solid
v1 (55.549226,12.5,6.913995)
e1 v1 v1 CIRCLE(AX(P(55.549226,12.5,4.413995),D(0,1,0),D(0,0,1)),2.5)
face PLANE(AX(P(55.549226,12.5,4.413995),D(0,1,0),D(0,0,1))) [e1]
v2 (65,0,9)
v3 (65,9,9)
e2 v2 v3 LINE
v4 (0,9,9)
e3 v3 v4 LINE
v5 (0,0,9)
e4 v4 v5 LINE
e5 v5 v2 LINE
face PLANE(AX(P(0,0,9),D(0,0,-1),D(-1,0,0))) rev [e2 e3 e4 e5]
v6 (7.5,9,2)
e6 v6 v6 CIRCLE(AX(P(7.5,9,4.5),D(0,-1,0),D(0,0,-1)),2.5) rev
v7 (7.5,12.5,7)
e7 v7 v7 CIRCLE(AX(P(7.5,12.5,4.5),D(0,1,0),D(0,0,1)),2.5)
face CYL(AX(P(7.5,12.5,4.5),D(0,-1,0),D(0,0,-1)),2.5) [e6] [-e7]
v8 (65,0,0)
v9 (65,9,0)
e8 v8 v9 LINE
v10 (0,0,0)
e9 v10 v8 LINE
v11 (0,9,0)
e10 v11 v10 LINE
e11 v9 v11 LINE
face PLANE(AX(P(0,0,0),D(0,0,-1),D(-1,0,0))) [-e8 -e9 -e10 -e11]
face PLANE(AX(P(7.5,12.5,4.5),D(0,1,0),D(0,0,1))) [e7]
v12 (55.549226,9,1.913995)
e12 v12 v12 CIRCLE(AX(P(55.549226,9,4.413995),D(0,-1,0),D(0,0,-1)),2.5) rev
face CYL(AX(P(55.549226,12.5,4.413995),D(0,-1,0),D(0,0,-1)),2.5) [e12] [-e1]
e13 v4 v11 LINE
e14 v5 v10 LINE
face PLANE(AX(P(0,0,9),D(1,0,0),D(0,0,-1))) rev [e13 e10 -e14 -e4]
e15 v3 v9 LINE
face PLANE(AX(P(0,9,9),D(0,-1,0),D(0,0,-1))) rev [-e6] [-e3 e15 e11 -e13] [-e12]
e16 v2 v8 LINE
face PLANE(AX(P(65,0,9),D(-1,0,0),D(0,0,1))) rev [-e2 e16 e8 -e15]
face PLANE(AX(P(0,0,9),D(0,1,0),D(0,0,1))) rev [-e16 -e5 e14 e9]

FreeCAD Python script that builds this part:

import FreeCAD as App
import Part
import Sketcher
from FreeCAD import Vector


def add_polygon(sketch, points):
    """Adds a closed chain of lines whose ends are joined by coincident constraints."""
    first, n = sketch.GeometryCount, len(points)
    for a, b in zip(points, points[1:] + points[:1]):
        sketch.addGeometry(Part.LineSegment(App.Vector(*a, 0), App.Vector(*b, 0)), False)
    for i in range(n):
        sketch.addConstraint(Sketcher.Constraint("Coincident", first + i, 2, first + (i + 1) % n, 1))

doc = App.newDocument("Part")
params = doc.addObject("Spreadsheet::Sheet", "Params")
for row, (alias, value) in enumerate([
    ("sketch1_width", "65 mm"),
    ("sketch1_height", "9 mm"),
    ("pad1_length", "9 mm"),
    ("sketch2_diameter", "5 mm"),
    ("pad2_length", "3.5 mm"),
    ("sketch3_diameter", "5 mm"),
    ("pad3_length", "3.5 mm"),
], start=1):
    params.set(f"A{row}", alias)
    params.set(f"B{row}", "=" + value)
    params.setAlias(f"B{row}", alias)

body = doc.addObject("PartDesign::Body", "Body")

# Sketch on XY plane
sketch1 = body.newObject("Sketcher::SketchObject", "Sketch")
sketch1.AttachmentSupport = (doc.getObject("XY_Plane"), [""])
sketch1.MapMode = "FlatFace"
add_polygon(sketch1, [(0, 9), (0, 0), (65, 0), (65, 9)])  # lines 0-3
sketch1.addConstraint(Sketcher.Constraint("Vertical", 0))
sketch1.addConstraint(Sketcher.Constraint("Horizontal", 1))
sketch1.addConstraint(Sketcher.Constraint("Vertical", 2))
sketch1.addConstraint(Sketcher.Constraint("Horizontal", 3))
sketch1.addConstraint(Sketcher.Constraint("Coincident", 0, 2, -1, 1))
sketch1.addConstraint(Sketcher.Constraint("DistanceX", 1, 1, 1, 2, 65.0))
sketch1.addConstraint(Sketcher.Constraint("DistanceY", 0, 2, 0, 1, 9.0))
sketch1.setExpression("Constraints[9]", "Params.sketch1_width")
sketch1.setExpression("Constraints[10]", "Params.sketch1_height")
pad1 = body.newObject("PartDesign::Pad", "Pad")
pad1.Profile = sketch1
pad1.setExpression("Length", "Params.pad1_length")

# Sketch on XZ plane
sketch2 = body.newObject("Sketcher::SketchObject", "Sketch001")
sketch2.AttachmentSupport = (doc.getObject("XZ_Plane"), [""])
sketch2.MapMode = "FlatFace"
sketch2.addGeometry(Part.Circle(Vector(7.5, 4.5, 0), Vector(0, 0, 1), 2.5), False)
sketch2.addGeometry(Part.Circle(Vector(57.5, 4.5, 0), Vector(0, 0, 1), 2.5), False)
sketch2.addConstraint(Sketcher.Constraint("Equal", 0, 1))
sketch2.addConstraint(Sketcher.Constraint("Horizontal", 0, 3, 1, 3))
sketch2.addConstraint(Sketcher.Constraint("Diameter", 0, 5.0))
sketch2.addConstraint(Sketcher.Constraint("DistanceX", 0, 3, 1, 3, 50.0))
sketch2.addConstraint(Sketcher.Constraint("DistanceX", -1, 1, 0, 3, 7.5))
sketch2.addConstraint(Sketcher.Constraint("DistanceY", -1, 1, 0, 3, 4.5))
sketch2.setExpression("Constraints[2]", "Params.sketch2_diameter")
pad2 = body.newObject("PartDesign::Pad", "Pad001")
pad2.Profile = sketch2
pad2.setExpression("Length", "Params.pad2_length")
pad2.Reversed = True

# Sketch on XZ plane
sketch3 = body.newObject("Sketcher::SketchObject", "Sketch002")
sketch3.AttachmentSupport = (doc.getObject("XZ_Plane"), [""])
sketch3.MapMode = "FlatFace"
sketch3.AttachmentOffset = App.Placement(Vector(0, 0, -9), App.Rotation())
sketch3.addGeometry(Part.Circle(Vector(7.5, 4.5, 0), Vector(0, 0, 1), 2.5), False)
sketch3.addGeometry(Part.Circle(Vector(55.549226, 4.413995, 0), Vector(0, 0, 1), 2.5), False)
sketch3.addConstraint(Sketcher.Constraint("Equal", 0, 1))
sketch3.addConstraint(Sketcher.Constraint("Diameter", 0, 5.0))
sketch3.addConstraint(Sketcher.Constraint("DistanceX", -1, 1, 0, 3, 7.5))
sketch3.addConstraint(Sketcher.Constraint("DistanceY", -1, 1, 0, 3, 4.5))
sketch3.addConstraint(Sketcher.Constraint("DistanceX", -1, 1, 1, 3, 55.549226))
sketch3.addConstraint(Sketcher.Constraint("DistanceY", -1, 1, 1, 3, 4.413995))
sketch3.setExpression("Constraints[1]", "Params.sketch3_diameter")
pad3 = body.newObject("PartDesign::Pad", "Pad002")
pad3.Profile = sketch3
pad3.setExpression("Length", "Params.pad3_length")
pad3.Reversed = True

doc.recompute()
